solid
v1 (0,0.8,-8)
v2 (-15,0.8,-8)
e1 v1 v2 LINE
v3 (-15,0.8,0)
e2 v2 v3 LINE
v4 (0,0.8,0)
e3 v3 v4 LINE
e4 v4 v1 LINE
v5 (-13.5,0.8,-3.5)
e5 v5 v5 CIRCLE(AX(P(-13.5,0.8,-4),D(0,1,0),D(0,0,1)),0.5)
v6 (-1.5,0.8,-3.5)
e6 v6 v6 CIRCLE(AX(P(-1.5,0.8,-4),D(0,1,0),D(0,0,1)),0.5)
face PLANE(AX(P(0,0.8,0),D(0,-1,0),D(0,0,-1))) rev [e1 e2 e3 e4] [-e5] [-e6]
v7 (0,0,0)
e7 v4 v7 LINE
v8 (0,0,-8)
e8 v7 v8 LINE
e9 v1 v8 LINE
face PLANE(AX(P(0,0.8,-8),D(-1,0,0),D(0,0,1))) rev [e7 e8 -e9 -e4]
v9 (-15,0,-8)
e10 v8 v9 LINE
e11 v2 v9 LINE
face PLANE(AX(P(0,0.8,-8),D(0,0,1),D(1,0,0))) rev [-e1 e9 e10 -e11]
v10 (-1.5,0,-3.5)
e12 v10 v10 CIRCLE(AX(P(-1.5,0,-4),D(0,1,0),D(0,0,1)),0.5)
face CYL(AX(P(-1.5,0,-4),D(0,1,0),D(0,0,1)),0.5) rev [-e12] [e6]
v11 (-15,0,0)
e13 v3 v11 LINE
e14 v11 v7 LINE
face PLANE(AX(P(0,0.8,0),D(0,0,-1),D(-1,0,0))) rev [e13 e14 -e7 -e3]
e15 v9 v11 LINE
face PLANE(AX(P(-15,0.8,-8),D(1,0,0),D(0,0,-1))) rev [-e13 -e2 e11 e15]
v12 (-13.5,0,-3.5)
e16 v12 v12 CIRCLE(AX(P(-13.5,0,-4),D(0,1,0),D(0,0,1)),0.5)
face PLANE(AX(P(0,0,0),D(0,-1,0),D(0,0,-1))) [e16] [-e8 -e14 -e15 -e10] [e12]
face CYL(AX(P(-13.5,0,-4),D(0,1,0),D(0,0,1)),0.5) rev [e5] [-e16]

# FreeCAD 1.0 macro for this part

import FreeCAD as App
import Part
import Sketcher

V = App.Vector

doc = App.newDocument("Part")
params = doc.addObject("Spreadsheet::Sheet", "Params")
for row, (alias, value) in enumerate([
    ("sketch1_width", "15 mm"),
    ("sketch1_height", "8 mm"),
    ("pad1_length", "0.8 mm"),
    ("sketch2_diameter", "1 mm"),
], start=1):
    params.set(f"A{row}", alias)
    params.set(f"B{row}", "=" + value)
    params.setAlias(f"B{row}", alias)

body = doc.addObject("PartDesign::Body", "Body")

sketch1 = doc.addObject("Sketcher::SketchObject", "Sketch")
body.addObject(sketch1)
sketch1.AttachmentSupport = (doc.XZ_Plane, [""])
sketch1.MapMode = "FlatFace"
sketch1.addGeometry([
    Part.LineSegment(V(-15, -8, 0), V(-15, 0, 0)),
    Part.LineSegment(V(-15, 0, 0), V(0, 0, 0)),
    Part.LineSegment(V(0, 0, 0), V(0, -8, 0)),
    Part.LineSegment(V(0, -8, 0), V(-15, -8, 0)),
], False)
sketch1.addConstraint([
    Sketcher.Constraint("Coincident", 0, 2, 1, 1),
    Sketcher.Constraint("Coincident", 1, 2, 2, 1),
    Sketcher.Constraint("Coincident", 2, 2, 3, 1),
    Sketcher.Constraint("Coincident", 3, 2, 0, 1),
    Sketcher.Constraint("Vertical", 0),
    Sketcher.Constraint("Horizontal", 1),
    Sketcher.Constraint("Vertical", 2),
    Sketcher.Constraint("Horizontal", 3),
    Sketcher.Constraint("Coincident", 1, 2, -1, 1),
    Sketcher.Constraint("DistanceX", 1, 1, 1, 2, 15.0),
    Sketcher.Constraint("DistanceY", 0, 1, 0, 2, 8.0),
])
sketch1.setExpression("Constraints[9]", "Params.sketch1_width")
sketch1.setExpression("Constraints[10]", "Params.sketch1_height")
pad1 = doc.addObject("PartDesign::Pad", "Pad")
body.addObject(pad1)
pad1.Profile = sketch1
pad1.setExpression("Length", "Params.pad1_length")
pad1.Reversed = True

sketch2 = doc.addObject("Sketcher::SketchObject", "Sketch001")
body.addObject(sketch2)
sketch2.AttachmentSupport = (doc.XZ_Plane, [""])
sketch2.MapMode = "FlatFace"
sketch2.AttachmentOffset = App.Placement(V(0, 0, -0.8), App.Rotation())
sketch2.addGeometry([
    Part.Circle(V(-13.5, -4, 0), V(0, 0, 1), 0.5),
    Part.Circle(V(-1.5, -4, 0), V(0, 0, 1), 0.5),
], False)
sketch2.addConstraint([
    Sketcher.Constraint("Equal", 0, 1),
    Sketcher.Constraint("Horizontal", 0, 3, 1, 3),
    Sketcher.Constraint("Diameter", 0, 1.0),
    Sketcher.Constraint("DistanceY", 0, 3, -1, 1, 4.0),
    Sketcher.Constraint("DistanceX", 0, 3, 1, 3, 12.0),
    Sketcher.Constraint("DistanceX", 0, 3, -1, 1, 13.5),
])
sketch2.setExpression("Constraints[2]", "Params.sketch2_diameter")
pocket1 = doc.addObject("PartDesign::Pocket", "Pocket")
body.addObject(pocket1)
pocket1.Profile = sketch2
pocket1.Type = "ThroughAll"
pocket1.Reversed = True

doc.recompute()
